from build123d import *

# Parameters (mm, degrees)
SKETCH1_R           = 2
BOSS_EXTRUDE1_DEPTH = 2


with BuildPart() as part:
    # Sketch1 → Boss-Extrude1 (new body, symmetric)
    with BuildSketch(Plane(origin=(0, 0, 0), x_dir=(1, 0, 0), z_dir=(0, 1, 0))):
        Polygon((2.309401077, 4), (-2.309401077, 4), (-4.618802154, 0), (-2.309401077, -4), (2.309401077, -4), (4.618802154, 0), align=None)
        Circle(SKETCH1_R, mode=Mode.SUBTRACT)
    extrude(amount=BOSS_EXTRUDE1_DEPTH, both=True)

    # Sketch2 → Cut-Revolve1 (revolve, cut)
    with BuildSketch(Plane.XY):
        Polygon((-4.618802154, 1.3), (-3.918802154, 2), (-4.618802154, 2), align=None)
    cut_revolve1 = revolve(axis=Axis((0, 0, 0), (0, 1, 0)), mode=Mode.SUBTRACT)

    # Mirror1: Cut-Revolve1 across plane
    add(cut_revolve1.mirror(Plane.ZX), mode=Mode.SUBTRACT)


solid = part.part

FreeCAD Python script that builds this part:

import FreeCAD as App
import Part
import Sketcher
from FreeCAD import Vector
Q = App.Units.Quantity

doc = App.newDocument("Part")
body = doc.addObject("PartDesign::Body", "Body")

# Sketch on XZ plane
sketch1 = body.newObject("Sketcher::SketchObject", "Sketch")
sketch1.AttachmentSupport = (doc.getObject("XZ_Plane"), [""])
sketch1.MapMode = "FlatFace"
sketch1.addGeometry([
    Part.LineSegment(Vector(2.3, -4, 0), Vector(-2.3, -4, 0)),  # 0
    Part.LineSegment(Vector(-2.3, -4, 0), Vector(-4.6, 0, 0)),  # 1
    Part.LineSegment(Vector(-4.6, 0, 0), Vector(-2.3, 4, 0)),  # 2
    Part.LineSegment(Vector(-2.3, 4, 0), Vector(2.3, 4, 0)),  # 3
    Part.LineSegment(Vector(2.3, 4, 0), Vector(4.6, 0, 0)),  # 4
    Part.LineSegment(Vector(4.6, 0, 0), Vector(2.3, -4, 0)),  # 5
    Part.Circle(Vector(0, 0, 0), Vector(0, 0, 1), 2),  # 6
], False)
sketch1.addConstraint([
    Sketcher.Constraint("Coincident", 0, 2, 1, 1),
    Sketcher.Constraint("Coincident", 1, 2, 2, 1),
    Sketcher.Constraint("Coincident", 2, 2, 3, 1),
    Sketcher.Constraint("Coincident", 3, 2, 4, 1),
    Sketcher.Constraint("Coincident", 4, 2, 5, 1),
    Sketcher.Constraint("Coincident", 5, 2, 0, 1),
    Sketcher.Constraint("Horizontal", 0),
    Sketcher.Constraint("Horizontal", 3),
    Sketcher.Constraint("Coincident", 6, 3, -1, 1),
    Sketcher.Constraint("Symmetric", 0, 2, 3, 2, -1, 1),
    Sketcher.Constraint("Symmetric", 1, 2, 4, 2, -1, 1),
    Sketcher.Constraint("PointOnObject", 1, 2, -1),
    Sketcher.Constraint("Parallel", 2, 5),
    Sketcher.Constraint("Vertical", 0, 2, 2, 2),
    Sketcher.Constraint("Diameter", 6, Q("4 mm")),
    Sketcher.Constraint("Angle", 1, Q("120 deg")),
    Sketcher.Constraint("DistanceY", 0, 2, -1, 1, Q("4 mm")),
    Sketcher.Constraint("DistanceX", 0, 2, -1, 1, Q("2.309401 mm")),
])
pad1 = body.newObject("PartDesign::Pad", "Pad")
pad1.Profile = sketch1
pad1.Length = 4
pad1.Midplane = True

# Sketch on XY plane
sketch2 = body.newObject("Sketcher::SketchObject", "Sketch001")
sketch2.AttachmentSupport = (doc.getObject("XY_Plane"), [""])
sketch2.MapMode = "FlatFace"
sketch2.addGeometry([
    Part.LineSegment(Vector(-4.6, 1.3, 0), Vector(-3.9, 2, 0)),
    Part.LineSegment(Vector(-3.9, 2, 0), Vector(-4.6, 2, 0)),
    Part.LineSegment(Vector(-4.6, 2, 0), Vector(-4.6, 1.3, 0)),
], False)
sketch2.addConstraint([
    Sketcher.Constraint("Coincident", 0, 2, 1, 1),
    Sketcher.Constraint("Coincident", 1, 2, 2, 1),
    Sketcher.Constraint("Coincident", 2, 2, 0, 1),
    Sketcher.Constraint("Horizontal", 1),
    Sketcher.Constraint("Vertical", 2),
    Sketcher.Constraint("Equal", 1, 2),
    Sketcher.Constraint("DistanceX", 1, 2, 1, 1, Q("0.7 mm")),
    Sketcher.Constraint("DistanceY", -1, 1, 0, 2, Q("2 mm")),
    Sketcher.Constraint("DistanceX", 0, 2, -1, 1, Q("3.918802 mm")),
])
groove = body.newObject("PartDesign::Groove", "Groove")
groove.Profile = sketch2
groove.ReferenceAxis = (sketch2, ["V_Axis"])
groove.Angle = 360
doc.recompute()

mirrored = body.newObject("PartDesign::Mirrored", "Mirrored")
mirrored.Originals = [groove]
mirrored.MirrorPlane = (doc.getObject("XZ_Plane"), [""])
body.Tip = mirrored

doc.recompute()
